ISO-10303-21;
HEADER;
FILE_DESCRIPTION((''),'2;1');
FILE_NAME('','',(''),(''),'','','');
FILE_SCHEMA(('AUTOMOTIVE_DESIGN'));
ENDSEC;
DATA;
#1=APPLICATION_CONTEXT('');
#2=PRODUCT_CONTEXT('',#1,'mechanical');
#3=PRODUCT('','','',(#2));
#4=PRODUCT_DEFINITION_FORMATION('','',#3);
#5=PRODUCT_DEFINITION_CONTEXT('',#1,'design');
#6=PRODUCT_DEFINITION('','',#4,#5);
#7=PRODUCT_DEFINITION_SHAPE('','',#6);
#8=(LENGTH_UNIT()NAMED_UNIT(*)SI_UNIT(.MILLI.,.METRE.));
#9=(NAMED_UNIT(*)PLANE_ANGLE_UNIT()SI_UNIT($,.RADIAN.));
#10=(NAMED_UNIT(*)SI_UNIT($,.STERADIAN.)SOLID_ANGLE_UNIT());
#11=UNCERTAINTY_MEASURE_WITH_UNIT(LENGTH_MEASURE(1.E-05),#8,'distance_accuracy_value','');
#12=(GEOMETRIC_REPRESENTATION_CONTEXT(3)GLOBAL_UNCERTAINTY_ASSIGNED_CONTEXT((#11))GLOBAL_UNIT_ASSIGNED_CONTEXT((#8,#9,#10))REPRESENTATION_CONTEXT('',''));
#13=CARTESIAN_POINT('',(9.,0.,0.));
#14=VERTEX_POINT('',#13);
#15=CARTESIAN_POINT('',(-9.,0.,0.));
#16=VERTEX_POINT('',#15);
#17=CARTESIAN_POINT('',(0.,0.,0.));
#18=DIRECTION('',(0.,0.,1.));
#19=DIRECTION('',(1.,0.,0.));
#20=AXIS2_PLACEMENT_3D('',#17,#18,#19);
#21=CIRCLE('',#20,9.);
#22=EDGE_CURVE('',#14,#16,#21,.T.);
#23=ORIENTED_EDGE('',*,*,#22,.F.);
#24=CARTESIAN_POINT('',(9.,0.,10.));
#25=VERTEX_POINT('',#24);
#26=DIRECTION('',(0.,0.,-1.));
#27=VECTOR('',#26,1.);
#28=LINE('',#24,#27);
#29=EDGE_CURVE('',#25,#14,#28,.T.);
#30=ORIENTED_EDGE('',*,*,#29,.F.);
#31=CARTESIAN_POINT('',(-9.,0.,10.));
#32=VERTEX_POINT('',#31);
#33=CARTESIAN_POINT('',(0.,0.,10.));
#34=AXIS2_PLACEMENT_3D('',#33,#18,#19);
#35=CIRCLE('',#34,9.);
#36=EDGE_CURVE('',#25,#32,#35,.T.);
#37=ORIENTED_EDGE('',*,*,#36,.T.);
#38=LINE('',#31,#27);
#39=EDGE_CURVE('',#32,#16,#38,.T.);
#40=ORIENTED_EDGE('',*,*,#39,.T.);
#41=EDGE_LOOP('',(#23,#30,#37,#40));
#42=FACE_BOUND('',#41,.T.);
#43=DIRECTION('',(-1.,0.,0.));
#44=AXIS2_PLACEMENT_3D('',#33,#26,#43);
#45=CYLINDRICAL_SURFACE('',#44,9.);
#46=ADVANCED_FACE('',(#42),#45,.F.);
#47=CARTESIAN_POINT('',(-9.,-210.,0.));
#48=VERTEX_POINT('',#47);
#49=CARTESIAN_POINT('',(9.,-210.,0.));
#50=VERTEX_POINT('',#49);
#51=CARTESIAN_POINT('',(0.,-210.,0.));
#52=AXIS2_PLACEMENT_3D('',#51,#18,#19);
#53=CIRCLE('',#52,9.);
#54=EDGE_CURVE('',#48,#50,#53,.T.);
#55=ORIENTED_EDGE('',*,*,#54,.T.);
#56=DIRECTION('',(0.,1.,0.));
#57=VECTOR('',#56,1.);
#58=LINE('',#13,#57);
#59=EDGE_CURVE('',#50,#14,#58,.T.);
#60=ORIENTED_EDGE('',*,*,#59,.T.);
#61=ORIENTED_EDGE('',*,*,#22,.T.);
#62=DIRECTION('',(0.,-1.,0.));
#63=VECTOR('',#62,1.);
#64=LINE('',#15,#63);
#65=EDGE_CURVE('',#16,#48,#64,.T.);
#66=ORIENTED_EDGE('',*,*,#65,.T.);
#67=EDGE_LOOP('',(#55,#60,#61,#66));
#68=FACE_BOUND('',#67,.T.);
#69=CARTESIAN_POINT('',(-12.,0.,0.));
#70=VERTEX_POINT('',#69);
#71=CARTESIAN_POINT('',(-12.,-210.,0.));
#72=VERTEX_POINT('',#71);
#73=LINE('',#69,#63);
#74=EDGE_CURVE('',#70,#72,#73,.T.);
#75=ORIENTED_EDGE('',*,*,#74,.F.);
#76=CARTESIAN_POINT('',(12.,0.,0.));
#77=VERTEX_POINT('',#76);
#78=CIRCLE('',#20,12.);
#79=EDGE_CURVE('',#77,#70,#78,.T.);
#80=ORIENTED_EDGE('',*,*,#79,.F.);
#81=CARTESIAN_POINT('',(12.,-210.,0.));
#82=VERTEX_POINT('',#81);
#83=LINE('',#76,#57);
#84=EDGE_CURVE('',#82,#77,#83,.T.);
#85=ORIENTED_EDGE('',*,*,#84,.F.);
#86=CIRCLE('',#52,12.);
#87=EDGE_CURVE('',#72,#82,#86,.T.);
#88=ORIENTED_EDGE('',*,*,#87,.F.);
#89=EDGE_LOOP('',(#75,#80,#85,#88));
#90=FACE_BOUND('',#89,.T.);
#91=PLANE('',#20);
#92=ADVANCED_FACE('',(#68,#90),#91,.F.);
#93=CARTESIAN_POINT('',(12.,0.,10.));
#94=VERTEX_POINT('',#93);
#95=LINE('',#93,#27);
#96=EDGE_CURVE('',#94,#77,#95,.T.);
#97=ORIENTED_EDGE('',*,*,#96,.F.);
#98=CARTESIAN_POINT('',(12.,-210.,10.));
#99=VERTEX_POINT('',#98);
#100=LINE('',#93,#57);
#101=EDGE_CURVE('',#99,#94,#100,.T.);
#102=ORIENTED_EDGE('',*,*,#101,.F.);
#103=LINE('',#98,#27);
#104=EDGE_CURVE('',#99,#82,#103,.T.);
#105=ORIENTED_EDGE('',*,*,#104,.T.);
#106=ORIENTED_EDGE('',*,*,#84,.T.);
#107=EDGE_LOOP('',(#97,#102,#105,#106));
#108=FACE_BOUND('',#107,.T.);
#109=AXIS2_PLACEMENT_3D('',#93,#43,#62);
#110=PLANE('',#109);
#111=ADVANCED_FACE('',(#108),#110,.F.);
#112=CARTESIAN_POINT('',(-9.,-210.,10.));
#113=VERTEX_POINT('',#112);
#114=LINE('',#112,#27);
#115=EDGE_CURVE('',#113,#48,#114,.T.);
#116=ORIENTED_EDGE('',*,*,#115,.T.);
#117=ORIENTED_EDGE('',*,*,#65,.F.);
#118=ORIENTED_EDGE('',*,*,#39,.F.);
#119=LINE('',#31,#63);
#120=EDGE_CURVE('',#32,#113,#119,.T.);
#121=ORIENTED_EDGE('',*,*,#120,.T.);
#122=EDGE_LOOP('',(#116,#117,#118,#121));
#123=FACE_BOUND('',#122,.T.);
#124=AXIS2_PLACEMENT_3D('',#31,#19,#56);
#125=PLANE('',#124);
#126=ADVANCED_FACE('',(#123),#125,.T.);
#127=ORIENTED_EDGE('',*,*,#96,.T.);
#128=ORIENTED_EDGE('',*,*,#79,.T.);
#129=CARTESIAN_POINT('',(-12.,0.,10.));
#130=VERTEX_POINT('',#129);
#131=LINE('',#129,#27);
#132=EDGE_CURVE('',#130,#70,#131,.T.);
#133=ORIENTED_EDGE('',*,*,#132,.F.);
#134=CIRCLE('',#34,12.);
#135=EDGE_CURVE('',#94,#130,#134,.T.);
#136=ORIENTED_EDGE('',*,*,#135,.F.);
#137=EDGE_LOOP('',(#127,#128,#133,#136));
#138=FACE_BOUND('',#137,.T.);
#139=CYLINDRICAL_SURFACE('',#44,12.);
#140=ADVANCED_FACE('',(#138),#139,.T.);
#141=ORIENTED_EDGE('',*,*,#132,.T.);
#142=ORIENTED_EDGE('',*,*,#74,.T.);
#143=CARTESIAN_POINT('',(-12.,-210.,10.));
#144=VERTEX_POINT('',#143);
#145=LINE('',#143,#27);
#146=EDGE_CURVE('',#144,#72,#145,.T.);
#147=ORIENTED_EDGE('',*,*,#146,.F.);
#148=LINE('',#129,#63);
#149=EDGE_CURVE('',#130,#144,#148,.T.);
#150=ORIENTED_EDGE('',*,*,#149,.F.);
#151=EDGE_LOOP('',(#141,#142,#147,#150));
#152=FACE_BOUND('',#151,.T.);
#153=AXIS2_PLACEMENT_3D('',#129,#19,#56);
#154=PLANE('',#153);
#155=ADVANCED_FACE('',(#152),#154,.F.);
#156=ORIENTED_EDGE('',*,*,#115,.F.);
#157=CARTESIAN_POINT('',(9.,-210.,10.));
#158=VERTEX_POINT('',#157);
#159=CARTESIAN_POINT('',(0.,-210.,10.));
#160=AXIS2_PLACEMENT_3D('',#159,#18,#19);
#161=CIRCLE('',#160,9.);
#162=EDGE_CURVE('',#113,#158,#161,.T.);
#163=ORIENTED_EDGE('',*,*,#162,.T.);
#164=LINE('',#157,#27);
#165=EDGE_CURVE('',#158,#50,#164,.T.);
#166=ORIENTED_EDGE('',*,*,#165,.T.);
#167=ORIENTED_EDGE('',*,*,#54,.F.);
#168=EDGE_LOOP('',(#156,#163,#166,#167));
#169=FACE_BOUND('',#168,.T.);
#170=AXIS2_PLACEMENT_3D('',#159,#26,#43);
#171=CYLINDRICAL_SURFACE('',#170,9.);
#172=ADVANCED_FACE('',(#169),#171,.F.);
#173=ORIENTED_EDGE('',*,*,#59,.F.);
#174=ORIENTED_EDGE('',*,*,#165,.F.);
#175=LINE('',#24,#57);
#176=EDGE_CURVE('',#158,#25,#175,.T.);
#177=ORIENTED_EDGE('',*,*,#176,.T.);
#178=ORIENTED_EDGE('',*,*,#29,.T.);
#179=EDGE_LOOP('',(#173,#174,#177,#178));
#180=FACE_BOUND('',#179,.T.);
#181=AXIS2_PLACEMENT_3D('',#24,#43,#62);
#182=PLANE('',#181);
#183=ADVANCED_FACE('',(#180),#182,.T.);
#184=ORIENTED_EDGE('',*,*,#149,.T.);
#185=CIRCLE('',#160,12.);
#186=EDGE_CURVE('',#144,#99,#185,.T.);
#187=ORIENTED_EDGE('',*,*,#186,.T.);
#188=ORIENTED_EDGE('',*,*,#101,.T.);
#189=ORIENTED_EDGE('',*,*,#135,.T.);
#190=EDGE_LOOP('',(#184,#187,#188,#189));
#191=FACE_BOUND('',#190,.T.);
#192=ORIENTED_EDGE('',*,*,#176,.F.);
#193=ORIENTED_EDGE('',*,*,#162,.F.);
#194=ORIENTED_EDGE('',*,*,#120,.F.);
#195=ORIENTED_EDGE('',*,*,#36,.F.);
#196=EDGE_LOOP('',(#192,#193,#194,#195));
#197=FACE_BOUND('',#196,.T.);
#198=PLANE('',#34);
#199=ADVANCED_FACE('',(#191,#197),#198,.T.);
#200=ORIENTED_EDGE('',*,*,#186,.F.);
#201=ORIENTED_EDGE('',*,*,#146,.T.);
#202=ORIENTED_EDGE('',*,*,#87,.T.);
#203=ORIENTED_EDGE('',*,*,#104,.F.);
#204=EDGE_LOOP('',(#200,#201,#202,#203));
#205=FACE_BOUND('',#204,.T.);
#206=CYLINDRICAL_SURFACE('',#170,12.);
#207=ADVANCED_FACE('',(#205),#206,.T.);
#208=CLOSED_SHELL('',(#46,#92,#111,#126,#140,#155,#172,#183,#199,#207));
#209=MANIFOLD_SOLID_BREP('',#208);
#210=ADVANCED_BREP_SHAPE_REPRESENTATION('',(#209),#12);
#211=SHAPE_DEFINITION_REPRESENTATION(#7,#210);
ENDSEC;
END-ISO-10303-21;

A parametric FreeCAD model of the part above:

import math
import FreeCAD as App
import Part
import Sketcher

V = App.Vector

doc = App.newDocument("Part")
body = doc.addObject("PartDesign::Body", "Body")

# Sketch on XY plane
sketch1 = doc.addObject("Sketcher::SketchObject", "Sketch")
body.addObject(sketch1)
sketch1.AttachmentSupport = (doc.XY_Plane, [""])
sketch1.MapMode = "FlatFace"
sketch1.addGeometry([
    Part.LineSegment(V(12, -210, 0), V(12, 0, 0)),  # 0
    Part.ArcOfCircle(Part.Circle(V(0, 0, 0), V(0, 0, 1), 12), math.radians(0), math.radians(180)),  # 1
    Part.LineSegment(V(-12, 0, 0), V(-12, -210, 0)),  # 2
    Part.ArcOfCircle(Part.Circle(V(0, -210, 0), V(0, 0, 1), 12), math.radians(180), math.radians(360)),  # 3
    Part.LineSegment(V(9, 0, 0), V(9, -210, 0)),  # 4
    Part.ArcOfCircle(Part.Circle(V(0, -210, 0), V(0, 0, 1), 9), math.radians(180), math.radians(360)),  # 5
    Part.LineSegment(V(-9, -210, 0), V(-9, 0, 0)),  # 6
    Part.ArcOfCircle(Part.Circle(V(0, 0, 0), V(0, 0, 1), 9), math.radians(0), math.radians(180)),  # 7
], False)
sketch1.addConstraint([
    Sketcher.Constraint("Tangent", 0, 2, 1, 1),
    Sketcher.Constraint("Tangent", 1, 2, 2, 1),
    Sketcher.Constraint("Tangent", 2, 2, 3, 1),
    Sketcher.Constraint("Tangent", 3, 2, 0, 1),
    Sketcher.Constraint("Tangent", 4, 2, 5, 2),
    Sketcher.Constraint("Tangent", 5, 1, 6, 1),
    Sketcher.Constraint("Tangent", 6, 2, 7, 2),
    Sketcher.Constraint("Tangent", 7, 1, 4, 1),
    Sketcher.Constraint("Vertical", 0),
    Sketcher.Constraint("Vertical", 2),
    Sketcher.Constraint("Vertical", 4),
    Sketcher.Constraint("Vertical", 6),
    Sketcher.Constraint("Coincident", 1, 3, -1, 1),
    Sketcher.Constraint("Coincident", 7, 3, -1, 1),
    Sketcher.Constraint("Horizontal", 5, 3, 2, 2),
    Sketcher.Constraint("Radius", 1, 12.0),
    Sketcher.Constraint("Radius", 5, 9.0),
    Sketcher.Constraint("DistanceY", 0, 1, 0, 2, 210.0),
])
pad1 = doc.addObject("PartDesign::Pad", "Pad")
body.addObject(pad1)
pad1.Profile = sketch1
pad1.Length = 10

doc.recompute()
